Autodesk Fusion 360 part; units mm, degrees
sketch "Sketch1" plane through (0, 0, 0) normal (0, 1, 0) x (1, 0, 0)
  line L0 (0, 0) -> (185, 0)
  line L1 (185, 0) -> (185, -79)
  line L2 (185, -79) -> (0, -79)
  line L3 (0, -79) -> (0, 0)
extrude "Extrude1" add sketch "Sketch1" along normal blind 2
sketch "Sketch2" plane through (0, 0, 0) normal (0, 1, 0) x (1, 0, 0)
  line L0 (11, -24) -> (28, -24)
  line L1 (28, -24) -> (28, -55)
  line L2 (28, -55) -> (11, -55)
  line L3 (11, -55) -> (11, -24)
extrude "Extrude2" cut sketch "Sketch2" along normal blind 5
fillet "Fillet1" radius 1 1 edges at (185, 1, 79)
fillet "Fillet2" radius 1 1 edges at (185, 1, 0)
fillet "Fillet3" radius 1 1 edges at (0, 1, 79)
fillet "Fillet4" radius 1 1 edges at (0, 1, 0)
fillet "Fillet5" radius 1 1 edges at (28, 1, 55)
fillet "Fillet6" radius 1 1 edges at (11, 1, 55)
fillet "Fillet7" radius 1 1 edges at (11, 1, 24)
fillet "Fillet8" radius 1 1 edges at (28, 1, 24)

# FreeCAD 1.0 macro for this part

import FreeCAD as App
import Part
import Sketcher

V = App.Vector


def edges_at(feature, points):
    """Names of the edges that pass closest to the given points."""
    edges = feature.Shape.Edges
    near = lambda p: min(range(len(edges)), key=lambda i: edges[i].distToShape(Part.Vertex(*p))[0])
    return sorted({f"Edge{near(p) + 1}" for p in points})

doc = App.newDocument("Part")
body = doc.addObject("PartDesign::Body", "Body")

sketch1 = doc.addObject("Sketcher::SketchObject", "Sketch")
body.addObject(sketch1)
sketch1.AttachmentSupport = (doc.XZ_Plane, [""])
sketch1.MapMode = "FlatFace"
sketch1.addGeometry([
    Part.LineSegment(V(185, 0, 0), V(0, 0, 0)),
    Part.LineSegment(V(0, 0, 0), V(0, 79, 0)),
    Part.LineSegment(V(0, 79, 0), V(185, 79, 0)),
    Part.LineSegment(V(185, 79, 0), V(185, 0, 0)),
], False)
sketch1.addConstraint([
    Sketcher.Constraint("Coincident", 0, 2, 1, 1),
    Sketcher.Constraint("Coincident", 1, 2, 2, 1),
    Sketcher.Constraint("Coincident", 2, 2, 3, 1),
    Sketcher.Constraint("Coincident", 3, 2, 0, 1),
    Sketcher.Constraint("Horizontal", 0),
    Sketcher.Constraint("Vertical", 1),
    Sketcher.Constraint("Horizontal", 2),
    Sketcher.Constraint("Vertical", 3),
    Sketcher.Constraint("Coincident", 0, 2, -1, 1),
    Sketcher.Constraint("DistanceX", 0, 2, 0, 1, 185.0),
    Sketcher.Constraint("DistanceY", 1, 1, 1, 2, 79.0),
])
pad1 = doc.addObject("PartDesign::Pad", "Pad")
body.addObject(pad1)
pad1.Profile = sketch1
pad1.Length = 2
pad1.Reversed = True

sketch2 = doc.addObject("Sketcher::SketchObject", "Sketch001")
body.addObject(sketch2)
sketch2.AttachmentSupport = (doc.XZ_Plane, [""])
sketch2.MapMode = "FlatFace"
sketch2.addGeometry([
    Part.LineSegment(V(28, 24, 0), V(11, 24, 0)),
    Part.LineSegment(V(11, 24, 0), V(11, 55, 0)),
    Part.LineSegment(V(11, 55, 0), V(28, 55, 0)),
    Part.LineSegment(V(28, 55, 0), V(28, 24, 0)),
], False)
sketch2.addConstraint([
    Sketcher.Constraint("Coincident", 0, 2, 1, 1),
    Sketcher.Constraint("Coincident", 1, 2, 2, 1),
    Sketcher.Constraint("Coincident", 2, 2, 3, 1),
    Sketcher.Constraint("Coincident", 3, 2, 0, 1),
    Sketcher.Constraint("Horizontal", 0),
    Sketcher.Constraint("Vertical", 1),
    Sketcher.Constraint("Horizontal", 2),
    Sketcher.Constraint("Vertical", 3),
    Sketcher.Constraint("DistanceX", 0, 2, 0, 1, 17.0),
    Sketcher.Constraint("DistanceY", 1, 1, 1, 2, 31.0),
    Sketcher.Constraint("DistanceX", -1, 1, 0, 2, 11.0),
    Sketcher.Constraint("DistanceY", -1, 1, 0, 2, 24.0),
])
pocket1 = doc.addObject("PartDesign::Pocket", "Pocket")
body.addObject(pocket1)
pocket1.Profile = sketch2
pocket1.Length = 5
doc.recompute()

fillet = doc.addObject("PartDesign::Fillet", "Fillet")
body.addObject(fillet)
fillet.Base = (pocket1, edges_at(pocket1, [(185, 1, 79)]))
fillet.Radius = 1
doc.recompute()

fillet2 = doc.addObject("PartDesign::Fillet", "Fillet001")
body.addObject(fillet2)
fillet2.Base = (fillet, edges_at(fillet, [(185, 1, 0)]))
fillet2.Radius = 1
doc.recompute()

fillet3 = doc.addObject("PartDesign::Fillet", "Fillet002")
body.addObject(fillet3)
fillet3.Base = (fillet2, edges_at(fillet2, [(0, 1, 79)]))
fillet3.Radius = 1
doc.recompute()

fillet4 = doc.addObject("PartDesign::Fillet", "Fillet003")
body.addObject(fillet4)
fillet4.Base = (fillet3, edges_at(fillet3, [(0, 1, 0)]))
fillet4.Radius = 1
doc.recompute()

fillet5 = doc.addObject("PartDesign::Fillet", "Fillet004")
body.addObject(fillet5)
fillet5.Base = (fillet4, edges_at(fillet4, [(28, 1, 55)]))
fillet5.Radius = 1
doc.recompute()

fillet6 = doc.addObject("PartDesign::Fillet", "Fillet005")
body.addObject(fillet6)
fillet6.Base = (fillet5, edges_at(fillet5, [(11, 1, 55)]))
fillet6.Radius = 1
doc.recompute()

fillet7 = doc.addObject("PartDesign::Fillet", "Fillet006")
body.addObject(fillet7)
fillet7.Base = (fillet6, edges_at(fillet6, [(11, 1, 24)]))
fillet7.Radius = 1
doc.recompute()

fillet8 = doc.addObject("PartDesign::Fillet", "Fillet007")
body.addObject(fillet8)
fillet8.Base = (fillet7, edges_at(fillet7, [(28, 1, 24)]))
fillet8.Radius = 1

doc.recompute()
